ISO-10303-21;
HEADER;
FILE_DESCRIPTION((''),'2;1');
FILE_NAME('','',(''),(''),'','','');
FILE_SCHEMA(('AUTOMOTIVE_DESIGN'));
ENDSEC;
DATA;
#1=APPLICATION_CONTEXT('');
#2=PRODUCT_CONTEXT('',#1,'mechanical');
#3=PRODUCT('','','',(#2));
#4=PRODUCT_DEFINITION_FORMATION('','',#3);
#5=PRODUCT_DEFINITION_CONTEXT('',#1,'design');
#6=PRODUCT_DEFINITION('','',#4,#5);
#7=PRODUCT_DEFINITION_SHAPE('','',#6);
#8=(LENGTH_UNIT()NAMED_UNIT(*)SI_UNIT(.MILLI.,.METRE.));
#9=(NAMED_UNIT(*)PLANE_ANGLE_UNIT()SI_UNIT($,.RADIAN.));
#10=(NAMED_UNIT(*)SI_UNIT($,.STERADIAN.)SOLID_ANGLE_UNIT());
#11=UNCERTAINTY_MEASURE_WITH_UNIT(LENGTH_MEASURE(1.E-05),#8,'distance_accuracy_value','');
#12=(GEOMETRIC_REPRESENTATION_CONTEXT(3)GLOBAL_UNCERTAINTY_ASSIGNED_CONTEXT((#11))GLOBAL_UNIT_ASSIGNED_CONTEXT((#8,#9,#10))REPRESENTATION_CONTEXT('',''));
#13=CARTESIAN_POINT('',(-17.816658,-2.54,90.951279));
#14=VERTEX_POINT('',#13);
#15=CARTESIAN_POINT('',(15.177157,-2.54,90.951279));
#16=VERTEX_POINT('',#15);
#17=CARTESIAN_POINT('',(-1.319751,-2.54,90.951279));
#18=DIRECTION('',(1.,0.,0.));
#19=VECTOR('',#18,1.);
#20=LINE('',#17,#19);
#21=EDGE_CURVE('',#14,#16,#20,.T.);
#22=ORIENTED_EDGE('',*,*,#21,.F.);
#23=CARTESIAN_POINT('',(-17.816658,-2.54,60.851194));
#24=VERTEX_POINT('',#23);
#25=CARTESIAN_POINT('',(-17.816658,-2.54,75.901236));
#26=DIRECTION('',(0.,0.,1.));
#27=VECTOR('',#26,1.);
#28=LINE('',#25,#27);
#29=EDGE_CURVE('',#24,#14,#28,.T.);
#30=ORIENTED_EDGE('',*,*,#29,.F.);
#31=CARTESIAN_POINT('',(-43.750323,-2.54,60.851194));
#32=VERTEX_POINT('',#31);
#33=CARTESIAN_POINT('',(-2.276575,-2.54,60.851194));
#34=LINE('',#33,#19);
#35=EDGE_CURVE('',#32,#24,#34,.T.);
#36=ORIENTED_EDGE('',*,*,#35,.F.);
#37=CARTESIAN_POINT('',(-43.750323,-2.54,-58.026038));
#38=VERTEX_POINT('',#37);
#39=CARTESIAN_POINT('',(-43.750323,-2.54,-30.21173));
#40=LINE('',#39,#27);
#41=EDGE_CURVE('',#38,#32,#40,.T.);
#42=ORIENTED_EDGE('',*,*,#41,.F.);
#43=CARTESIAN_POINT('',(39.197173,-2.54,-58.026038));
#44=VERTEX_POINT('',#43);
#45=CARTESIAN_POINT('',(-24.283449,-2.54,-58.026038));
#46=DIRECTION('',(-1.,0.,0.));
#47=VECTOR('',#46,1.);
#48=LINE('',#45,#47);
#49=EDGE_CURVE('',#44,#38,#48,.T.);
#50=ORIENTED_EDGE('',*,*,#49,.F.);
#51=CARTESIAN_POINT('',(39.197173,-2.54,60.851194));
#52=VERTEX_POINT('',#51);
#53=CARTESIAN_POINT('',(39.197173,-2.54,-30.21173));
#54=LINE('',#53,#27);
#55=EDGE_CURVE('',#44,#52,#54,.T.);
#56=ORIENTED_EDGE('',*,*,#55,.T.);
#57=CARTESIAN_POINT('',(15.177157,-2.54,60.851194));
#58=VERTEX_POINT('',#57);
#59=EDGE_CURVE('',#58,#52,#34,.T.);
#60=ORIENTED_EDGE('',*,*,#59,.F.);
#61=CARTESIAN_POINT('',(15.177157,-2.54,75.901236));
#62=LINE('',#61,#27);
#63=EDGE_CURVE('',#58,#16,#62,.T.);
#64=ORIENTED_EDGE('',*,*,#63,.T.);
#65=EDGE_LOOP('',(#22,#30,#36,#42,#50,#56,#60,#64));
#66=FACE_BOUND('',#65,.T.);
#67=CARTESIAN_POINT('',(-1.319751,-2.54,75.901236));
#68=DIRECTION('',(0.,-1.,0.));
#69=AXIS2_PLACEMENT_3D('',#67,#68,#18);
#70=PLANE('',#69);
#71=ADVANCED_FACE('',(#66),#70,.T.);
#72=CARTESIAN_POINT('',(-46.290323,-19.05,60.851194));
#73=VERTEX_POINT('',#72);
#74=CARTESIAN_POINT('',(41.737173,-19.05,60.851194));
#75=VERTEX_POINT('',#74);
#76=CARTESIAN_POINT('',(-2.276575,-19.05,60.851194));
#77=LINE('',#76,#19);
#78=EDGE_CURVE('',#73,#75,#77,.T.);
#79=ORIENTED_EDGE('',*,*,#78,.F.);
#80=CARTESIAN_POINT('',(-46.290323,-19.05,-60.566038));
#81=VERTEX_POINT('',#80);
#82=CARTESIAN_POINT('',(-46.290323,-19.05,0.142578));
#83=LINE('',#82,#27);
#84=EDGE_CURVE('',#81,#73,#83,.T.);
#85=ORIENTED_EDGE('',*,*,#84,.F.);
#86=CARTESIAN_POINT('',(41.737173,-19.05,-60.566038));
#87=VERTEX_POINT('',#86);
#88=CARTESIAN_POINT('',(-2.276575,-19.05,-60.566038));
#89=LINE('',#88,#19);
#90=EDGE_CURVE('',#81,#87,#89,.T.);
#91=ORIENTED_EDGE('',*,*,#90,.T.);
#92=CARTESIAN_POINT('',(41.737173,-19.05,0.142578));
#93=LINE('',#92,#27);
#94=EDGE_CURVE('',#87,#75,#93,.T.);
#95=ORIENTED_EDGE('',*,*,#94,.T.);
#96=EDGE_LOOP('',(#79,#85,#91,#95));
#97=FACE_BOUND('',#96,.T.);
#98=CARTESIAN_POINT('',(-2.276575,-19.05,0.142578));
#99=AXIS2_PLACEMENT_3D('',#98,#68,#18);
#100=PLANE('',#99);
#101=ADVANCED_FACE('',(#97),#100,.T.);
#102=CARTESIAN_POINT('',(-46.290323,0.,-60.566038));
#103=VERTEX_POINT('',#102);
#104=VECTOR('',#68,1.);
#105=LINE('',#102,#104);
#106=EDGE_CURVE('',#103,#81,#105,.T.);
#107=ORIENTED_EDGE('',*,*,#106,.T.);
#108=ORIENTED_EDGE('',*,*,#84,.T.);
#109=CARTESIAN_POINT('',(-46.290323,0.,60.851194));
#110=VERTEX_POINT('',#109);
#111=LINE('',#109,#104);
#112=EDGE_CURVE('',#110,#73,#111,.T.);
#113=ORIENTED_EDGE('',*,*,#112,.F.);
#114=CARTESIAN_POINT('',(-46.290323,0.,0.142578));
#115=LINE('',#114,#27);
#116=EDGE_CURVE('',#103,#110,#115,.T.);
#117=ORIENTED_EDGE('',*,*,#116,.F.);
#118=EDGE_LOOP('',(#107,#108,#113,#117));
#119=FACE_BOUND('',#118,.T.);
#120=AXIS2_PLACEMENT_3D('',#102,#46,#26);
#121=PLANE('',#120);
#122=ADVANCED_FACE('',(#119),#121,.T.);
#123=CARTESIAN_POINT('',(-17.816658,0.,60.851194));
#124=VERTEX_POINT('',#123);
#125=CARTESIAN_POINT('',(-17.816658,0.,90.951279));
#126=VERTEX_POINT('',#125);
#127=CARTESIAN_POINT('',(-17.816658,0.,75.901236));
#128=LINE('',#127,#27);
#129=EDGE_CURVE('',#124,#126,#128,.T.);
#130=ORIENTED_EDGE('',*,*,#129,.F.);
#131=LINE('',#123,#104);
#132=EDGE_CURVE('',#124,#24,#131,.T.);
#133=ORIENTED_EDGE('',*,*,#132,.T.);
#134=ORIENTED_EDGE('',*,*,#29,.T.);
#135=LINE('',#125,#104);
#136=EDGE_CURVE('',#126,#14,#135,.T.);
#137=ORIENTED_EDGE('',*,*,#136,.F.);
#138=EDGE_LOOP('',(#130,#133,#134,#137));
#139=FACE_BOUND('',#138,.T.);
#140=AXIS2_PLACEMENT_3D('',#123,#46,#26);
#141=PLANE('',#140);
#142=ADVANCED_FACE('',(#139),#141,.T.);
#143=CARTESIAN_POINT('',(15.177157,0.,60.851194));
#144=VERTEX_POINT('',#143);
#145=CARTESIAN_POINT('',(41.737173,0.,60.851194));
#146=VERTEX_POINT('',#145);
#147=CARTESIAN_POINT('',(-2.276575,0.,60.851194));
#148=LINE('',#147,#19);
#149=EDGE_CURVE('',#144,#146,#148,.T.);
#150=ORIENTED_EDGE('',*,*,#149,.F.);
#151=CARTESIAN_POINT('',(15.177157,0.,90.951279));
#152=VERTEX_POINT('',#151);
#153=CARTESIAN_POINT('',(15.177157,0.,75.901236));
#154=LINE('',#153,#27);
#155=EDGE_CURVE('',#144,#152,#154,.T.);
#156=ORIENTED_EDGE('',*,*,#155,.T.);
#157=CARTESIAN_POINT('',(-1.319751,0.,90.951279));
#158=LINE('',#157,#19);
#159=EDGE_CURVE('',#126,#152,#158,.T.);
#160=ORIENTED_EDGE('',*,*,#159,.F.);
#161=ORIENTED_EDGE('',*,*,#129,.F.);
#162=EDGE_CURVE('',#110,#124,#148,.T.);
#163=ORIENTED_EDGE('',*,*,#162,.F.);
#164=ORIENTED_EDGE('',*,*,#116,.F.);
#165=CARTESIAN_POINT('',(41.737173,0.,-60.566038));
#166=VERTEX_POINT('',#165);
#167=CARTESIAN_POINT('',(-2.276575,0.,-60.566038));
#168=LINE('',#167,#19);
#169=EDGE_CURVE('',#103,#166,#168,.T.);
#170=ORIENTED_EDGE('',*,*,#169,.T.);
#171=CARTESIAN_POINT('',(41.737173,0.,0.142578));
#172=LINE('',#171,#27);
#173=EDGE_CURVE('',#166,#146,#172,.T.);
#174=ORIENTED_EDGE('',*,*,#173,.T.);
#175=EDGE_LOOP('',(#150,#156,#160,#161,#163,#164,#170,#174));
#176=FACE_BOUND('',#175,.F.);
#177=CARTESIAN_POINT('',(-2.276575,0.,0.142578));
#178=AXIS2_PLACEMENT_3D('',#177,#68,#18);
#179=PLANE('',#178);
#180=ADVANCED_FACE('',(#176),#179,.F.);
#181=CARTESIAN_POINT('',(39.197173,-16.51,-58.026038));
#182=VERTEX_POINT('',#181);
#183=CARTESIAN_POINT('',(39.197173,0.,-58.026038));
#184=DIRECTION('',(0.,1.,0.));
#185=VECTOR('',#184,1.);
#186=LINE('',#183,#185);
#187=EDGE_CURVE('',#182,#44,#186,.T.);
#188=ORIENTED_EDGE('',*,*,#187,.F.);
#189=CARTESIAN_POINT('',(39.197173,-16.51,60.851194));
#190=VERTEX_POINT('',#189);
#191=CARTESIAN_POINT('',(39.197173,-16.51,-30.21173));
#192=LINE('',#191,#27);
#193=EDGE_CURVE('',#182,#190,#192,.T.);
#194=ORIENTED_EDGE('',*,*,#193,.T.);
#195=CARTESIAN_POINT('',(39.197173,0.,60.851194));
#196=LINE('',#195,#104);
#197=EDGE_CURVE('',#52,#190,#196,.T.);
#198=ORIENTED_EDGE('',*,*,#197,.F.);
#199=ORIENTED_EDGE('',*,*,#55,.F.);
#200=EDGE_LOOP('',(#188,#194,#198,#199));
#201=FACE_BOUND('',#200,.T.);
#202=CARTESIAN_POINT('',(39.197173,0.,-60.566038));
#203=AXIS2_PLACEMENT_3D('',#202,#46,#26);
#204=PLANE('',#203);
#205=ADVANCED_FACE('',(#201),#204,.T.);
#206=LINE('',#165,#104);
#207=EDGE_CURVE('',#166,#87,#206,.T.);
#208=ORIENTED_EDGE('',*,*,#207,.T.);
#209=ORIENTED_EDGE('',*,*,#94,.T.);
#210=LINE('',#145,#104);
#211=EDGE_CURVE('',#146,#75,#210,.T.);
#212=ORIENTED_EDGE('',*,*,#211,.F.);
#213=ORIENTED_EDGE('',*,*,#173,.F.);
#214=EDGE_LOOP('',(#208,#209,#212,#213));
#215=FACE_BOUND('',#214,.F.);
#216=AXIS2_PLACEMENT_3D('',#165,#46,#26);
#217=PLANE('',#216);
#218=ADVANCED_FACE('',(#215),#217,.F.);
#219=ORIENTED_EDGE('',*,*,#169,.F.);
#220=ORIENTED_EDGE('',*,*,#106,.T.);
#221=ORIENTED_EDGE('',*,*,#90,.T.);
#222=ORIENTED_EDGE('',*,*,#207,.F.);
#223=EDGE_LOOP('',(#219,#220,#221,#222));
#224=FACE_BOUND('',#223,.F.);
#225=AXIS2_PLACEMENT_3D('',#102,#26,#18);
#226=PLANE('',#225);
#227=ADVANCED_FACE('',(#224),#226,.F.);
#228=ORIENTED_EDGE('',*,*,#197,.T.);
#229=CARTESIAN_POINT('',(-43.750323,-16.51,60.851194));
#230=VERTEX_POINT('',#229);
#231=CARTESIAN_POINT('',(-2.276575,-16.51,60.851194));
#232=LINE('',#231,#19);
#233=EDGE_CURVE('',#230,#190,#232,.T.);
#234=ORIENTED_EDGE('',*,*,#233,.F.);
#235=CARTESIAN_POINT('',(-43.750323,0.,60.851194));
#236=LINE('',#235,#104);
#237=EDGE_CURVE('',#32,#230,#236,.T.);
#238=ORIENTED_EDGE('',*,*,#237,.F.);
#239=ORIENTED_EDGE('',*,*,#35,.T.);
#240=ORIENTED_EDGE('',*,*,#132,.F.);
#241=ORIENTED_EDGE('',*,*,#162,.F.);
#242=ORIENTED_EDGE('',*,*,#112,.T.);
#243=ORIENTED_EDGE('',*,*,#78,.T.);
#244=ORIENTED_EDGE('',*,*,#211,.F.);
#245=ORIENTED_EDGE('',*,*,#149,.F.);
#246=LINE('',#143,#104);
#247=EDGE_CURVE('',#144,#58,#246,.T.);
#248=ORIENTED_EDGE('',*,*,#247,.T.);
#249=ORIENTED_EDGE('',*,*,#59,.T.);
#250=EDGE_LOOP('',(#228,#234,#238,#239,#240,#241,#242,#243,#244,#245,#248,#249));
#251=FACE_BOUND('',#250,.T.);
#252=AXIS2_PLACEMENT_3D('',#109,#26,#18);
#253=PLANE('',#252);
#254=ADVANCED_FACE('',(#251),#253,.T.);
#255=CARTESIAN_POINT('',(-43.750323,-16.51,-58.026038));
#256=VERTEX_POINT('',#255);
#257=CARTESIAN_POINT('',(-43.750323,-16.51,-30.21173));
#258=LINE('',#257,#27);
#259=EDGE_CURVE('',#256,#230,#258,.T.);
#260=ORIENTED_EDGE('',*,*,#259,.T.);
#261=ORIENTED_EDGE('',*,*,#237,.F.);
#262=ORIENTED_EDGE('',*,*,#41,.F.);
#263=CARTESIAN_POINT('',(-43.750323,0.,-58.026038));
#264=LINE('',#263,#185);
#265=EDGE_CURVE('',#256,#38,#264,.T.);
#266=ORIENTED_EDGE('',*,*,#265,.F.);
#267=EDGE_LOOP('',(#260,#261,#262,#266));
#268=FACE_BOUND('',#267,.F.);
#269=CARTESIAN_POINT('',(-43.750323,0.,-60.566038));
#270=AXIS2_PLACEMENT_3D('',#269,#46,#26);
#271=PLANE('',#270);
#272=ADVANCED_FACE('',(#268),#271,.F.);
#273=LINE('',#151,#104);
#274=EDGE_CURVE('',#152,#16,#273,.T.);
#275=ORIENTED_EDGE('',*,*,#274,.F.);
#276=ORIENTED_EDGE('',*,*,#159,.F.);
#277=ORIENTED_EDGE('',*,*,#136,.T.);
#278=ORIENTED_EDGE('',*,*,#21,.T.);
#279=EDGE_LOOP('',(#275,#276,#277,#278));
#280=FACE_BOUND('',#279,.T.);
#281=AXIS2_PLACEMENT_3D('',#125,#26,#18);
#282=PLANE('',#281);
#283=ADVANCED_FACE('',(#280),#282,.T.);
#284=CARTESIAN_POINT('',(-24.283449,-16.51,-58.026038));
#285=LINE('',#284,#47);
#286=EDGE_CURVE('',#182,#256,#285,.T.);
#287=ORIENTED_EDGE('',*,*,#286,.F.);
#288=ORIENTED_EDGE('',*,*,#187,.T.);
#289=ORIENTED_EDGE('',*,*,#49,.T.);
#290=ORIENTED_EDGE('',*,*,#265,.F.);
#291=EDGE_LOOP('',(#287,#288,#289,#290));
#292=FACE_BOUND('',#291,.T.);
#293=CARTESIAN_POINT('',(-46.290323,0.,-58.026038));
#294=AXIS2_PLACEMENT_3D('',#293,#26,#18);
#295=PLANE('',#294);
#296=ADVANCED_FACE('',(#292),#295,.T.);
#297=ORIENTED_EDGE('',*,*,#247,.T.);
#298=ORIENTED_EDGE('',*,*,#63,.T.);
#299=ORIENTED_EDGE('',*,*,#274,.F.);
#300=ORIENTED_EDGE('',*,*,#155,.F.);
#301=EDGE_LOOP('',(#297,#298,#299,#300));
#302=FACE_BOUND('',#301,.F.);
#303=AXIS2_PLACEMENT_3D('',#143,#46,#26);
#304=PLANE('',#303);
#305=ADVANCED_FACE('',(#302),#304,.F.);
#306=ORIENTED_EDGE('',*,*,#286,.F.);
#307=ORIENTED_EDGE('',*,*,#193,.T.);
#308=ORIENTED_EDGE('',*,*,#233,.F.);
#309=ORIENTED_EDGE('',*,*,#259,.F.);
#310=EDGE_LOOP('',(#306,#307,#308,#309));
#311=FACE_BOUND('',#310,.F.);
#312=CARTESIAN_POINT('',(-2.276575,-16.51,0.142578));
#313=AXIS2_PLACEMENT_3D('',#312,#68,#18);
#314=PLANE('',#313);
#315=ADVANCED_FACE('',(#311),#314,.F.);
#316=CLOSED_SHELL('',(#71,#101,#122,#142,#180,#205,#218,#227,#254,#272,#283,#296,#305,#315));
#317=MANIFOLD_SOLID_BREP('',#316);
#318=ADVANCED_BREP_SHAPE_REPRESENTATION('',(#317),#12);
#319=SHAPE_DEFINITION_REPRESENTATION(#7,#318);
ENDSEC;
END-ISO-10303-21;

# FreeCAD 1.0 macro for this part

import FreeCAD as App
import Part
import Sketcher
from FreeCAD import Vector
Q = App.Units.Quantity


def faces_at(feature, points):
    """Names of the faces that lie closest to the given points."""
    faces = feature.Shape.Faces
    near = lambda p: min(range(len(faces)), key=lambda i: faces[i].distToShape(Part.Vertex(*p))[0])
    return sorted({f"Face{near(p) + 1}" for p in points})

doc = App.newDocument("Part")
body = doc.addObject("PartDesign::Body", "Body")

# Sketch on XZ plane
sketch1 = doc.addObject("Sketcher::SketchObject", "Sketch")
body.addObject(sketch1)
sketch1.AttachmentSupport = (doc.XZ_Plane, [""])
sketch1.MapMode = "FlatFace"
sketch1.addGeometry([
    Part.LineSegment(Vector(-46, 61, 0), Vector(-46, -61, 0)),
    Part.LineSegment(Vector(-46, -61, 0), Vector(42, -61, 0)),
    Part.LineSegment(Vector(42, -61, 0), Vector(42, 61, 0)),
    Part.LineSegment(Vector(42, 61, 0), Vector(-46, 61, 0)),
], False)
sketch1.addConstraint([
    Sketcher.Constraint("Coincident", 0, 2, 1, 1),
    Sketcher.Constraint("Coincident", 1, 2, 2, 1),
    Sketcher.Constraint("Coincident", 2, 2, 3, 1),
    Sketcher.Constraint("Coincident", 3, 2, 0, 1),
    Sketcher.Constraint("Vertical", 0),
    Sketcher.Constraint("Horizontal", 1),
    Sketcher.Constraint("Vertical", 2),
    Sketcher.Constraint("Horizontal", 3),
    Sketcher.Constraint("DistanceY", 0, 2, 0, 1, Q("121.417232 mm")),
    Sketcher.Constraint("DistanceX", 1, 1, 1, 2, Q("88.027496 mm")),
    Sketcher.Constraint("DistanceX", 0, 2, -1, 1, Q("46.290323 mm")),
    Sketcher.Constraint("DistanceY", 0, 2, -1, 1, Q("60.566038 mm")),
])
pad1 = doc.addObject("PartDesign::Pad", "Pad")
body.addObject(pad1)
pad1.Profile = sketch1
pad1.Length = Q("0.75 in")
doc.recompute()

thickness = doc.addObject("PartDesign::Thickness", "Thickness")
body.addObject(thickness)
thickness.Base = (pad1, faces_at(pad1, [(-2.277, -9.525, 60.851)]))
thickness.Value = Q("0.1 in")
thickness.Reversed = True
thickness.Join = "Arc"

# Sketch on XZ plane
sketch2 = doc.addObject("Sketcher::SketchObject", "Sketch001")
body.addObject(sketch2)
sketch2.AttachmentSupport = (doc.XZ_Plane, [""])
sketch2.MapMode = "FlatFace"
sketch2.addGeometry([
    Part.LineSegment(Vector(-18, 91, 0), Vector(-18, 61, 0)),
    Part.LineSegment(Vector(-18, 61, 0), Vector(15, 61, 0)),
    Part.LineSegment(Vector(15, 61, 0), Vector(15, 91, 0)),
    Part.LineSegment(Vector(15, 91, 0), Vector(-18, 91, 0)),
], False)
sketch2.addConstraint([
    Sketcher.Constraint("Coincident", 0, 2, 1, 1),
    Sketcher.Constraint("Coincident", 1, 2, 2, 1),
    Sketcher.Constraint("Coincident", 2, 2, 3, 1),
    Sketcher.Constraint("Coincident", 3, 2, 0, 1),
    Sketcher.Constraint("Vertical", 0),
    Sketcher.Constraint("Horizontal", 1),
    Sketcher.Constraint("Vertical", 2),
    Sketcher.Constraint("Horizontal", 3),
    Sketcher.Constraint("DistanceX", 1, 1, 1, 2, Q("32.993815 mm")),
    Sketcher.Constraint("DistanceY", 0, 2, 0, 1, Q("30.100085 mm")),
    Sketcher.Constraint("DistanceX", 0, 2, -1, 1, Q("17.816658 mm")),
    Sketcher.Constraint("DistanceY", -1, 1, 2, 2, Q("90.951279 mm")),
])
pad2 = doc.addObject("PartDesign::Pad", "Pad001")
body.addObject(pad2)
pad2.Profile = sketch2
pad2.Length = Q("0.1 in")

doc.recompute()
